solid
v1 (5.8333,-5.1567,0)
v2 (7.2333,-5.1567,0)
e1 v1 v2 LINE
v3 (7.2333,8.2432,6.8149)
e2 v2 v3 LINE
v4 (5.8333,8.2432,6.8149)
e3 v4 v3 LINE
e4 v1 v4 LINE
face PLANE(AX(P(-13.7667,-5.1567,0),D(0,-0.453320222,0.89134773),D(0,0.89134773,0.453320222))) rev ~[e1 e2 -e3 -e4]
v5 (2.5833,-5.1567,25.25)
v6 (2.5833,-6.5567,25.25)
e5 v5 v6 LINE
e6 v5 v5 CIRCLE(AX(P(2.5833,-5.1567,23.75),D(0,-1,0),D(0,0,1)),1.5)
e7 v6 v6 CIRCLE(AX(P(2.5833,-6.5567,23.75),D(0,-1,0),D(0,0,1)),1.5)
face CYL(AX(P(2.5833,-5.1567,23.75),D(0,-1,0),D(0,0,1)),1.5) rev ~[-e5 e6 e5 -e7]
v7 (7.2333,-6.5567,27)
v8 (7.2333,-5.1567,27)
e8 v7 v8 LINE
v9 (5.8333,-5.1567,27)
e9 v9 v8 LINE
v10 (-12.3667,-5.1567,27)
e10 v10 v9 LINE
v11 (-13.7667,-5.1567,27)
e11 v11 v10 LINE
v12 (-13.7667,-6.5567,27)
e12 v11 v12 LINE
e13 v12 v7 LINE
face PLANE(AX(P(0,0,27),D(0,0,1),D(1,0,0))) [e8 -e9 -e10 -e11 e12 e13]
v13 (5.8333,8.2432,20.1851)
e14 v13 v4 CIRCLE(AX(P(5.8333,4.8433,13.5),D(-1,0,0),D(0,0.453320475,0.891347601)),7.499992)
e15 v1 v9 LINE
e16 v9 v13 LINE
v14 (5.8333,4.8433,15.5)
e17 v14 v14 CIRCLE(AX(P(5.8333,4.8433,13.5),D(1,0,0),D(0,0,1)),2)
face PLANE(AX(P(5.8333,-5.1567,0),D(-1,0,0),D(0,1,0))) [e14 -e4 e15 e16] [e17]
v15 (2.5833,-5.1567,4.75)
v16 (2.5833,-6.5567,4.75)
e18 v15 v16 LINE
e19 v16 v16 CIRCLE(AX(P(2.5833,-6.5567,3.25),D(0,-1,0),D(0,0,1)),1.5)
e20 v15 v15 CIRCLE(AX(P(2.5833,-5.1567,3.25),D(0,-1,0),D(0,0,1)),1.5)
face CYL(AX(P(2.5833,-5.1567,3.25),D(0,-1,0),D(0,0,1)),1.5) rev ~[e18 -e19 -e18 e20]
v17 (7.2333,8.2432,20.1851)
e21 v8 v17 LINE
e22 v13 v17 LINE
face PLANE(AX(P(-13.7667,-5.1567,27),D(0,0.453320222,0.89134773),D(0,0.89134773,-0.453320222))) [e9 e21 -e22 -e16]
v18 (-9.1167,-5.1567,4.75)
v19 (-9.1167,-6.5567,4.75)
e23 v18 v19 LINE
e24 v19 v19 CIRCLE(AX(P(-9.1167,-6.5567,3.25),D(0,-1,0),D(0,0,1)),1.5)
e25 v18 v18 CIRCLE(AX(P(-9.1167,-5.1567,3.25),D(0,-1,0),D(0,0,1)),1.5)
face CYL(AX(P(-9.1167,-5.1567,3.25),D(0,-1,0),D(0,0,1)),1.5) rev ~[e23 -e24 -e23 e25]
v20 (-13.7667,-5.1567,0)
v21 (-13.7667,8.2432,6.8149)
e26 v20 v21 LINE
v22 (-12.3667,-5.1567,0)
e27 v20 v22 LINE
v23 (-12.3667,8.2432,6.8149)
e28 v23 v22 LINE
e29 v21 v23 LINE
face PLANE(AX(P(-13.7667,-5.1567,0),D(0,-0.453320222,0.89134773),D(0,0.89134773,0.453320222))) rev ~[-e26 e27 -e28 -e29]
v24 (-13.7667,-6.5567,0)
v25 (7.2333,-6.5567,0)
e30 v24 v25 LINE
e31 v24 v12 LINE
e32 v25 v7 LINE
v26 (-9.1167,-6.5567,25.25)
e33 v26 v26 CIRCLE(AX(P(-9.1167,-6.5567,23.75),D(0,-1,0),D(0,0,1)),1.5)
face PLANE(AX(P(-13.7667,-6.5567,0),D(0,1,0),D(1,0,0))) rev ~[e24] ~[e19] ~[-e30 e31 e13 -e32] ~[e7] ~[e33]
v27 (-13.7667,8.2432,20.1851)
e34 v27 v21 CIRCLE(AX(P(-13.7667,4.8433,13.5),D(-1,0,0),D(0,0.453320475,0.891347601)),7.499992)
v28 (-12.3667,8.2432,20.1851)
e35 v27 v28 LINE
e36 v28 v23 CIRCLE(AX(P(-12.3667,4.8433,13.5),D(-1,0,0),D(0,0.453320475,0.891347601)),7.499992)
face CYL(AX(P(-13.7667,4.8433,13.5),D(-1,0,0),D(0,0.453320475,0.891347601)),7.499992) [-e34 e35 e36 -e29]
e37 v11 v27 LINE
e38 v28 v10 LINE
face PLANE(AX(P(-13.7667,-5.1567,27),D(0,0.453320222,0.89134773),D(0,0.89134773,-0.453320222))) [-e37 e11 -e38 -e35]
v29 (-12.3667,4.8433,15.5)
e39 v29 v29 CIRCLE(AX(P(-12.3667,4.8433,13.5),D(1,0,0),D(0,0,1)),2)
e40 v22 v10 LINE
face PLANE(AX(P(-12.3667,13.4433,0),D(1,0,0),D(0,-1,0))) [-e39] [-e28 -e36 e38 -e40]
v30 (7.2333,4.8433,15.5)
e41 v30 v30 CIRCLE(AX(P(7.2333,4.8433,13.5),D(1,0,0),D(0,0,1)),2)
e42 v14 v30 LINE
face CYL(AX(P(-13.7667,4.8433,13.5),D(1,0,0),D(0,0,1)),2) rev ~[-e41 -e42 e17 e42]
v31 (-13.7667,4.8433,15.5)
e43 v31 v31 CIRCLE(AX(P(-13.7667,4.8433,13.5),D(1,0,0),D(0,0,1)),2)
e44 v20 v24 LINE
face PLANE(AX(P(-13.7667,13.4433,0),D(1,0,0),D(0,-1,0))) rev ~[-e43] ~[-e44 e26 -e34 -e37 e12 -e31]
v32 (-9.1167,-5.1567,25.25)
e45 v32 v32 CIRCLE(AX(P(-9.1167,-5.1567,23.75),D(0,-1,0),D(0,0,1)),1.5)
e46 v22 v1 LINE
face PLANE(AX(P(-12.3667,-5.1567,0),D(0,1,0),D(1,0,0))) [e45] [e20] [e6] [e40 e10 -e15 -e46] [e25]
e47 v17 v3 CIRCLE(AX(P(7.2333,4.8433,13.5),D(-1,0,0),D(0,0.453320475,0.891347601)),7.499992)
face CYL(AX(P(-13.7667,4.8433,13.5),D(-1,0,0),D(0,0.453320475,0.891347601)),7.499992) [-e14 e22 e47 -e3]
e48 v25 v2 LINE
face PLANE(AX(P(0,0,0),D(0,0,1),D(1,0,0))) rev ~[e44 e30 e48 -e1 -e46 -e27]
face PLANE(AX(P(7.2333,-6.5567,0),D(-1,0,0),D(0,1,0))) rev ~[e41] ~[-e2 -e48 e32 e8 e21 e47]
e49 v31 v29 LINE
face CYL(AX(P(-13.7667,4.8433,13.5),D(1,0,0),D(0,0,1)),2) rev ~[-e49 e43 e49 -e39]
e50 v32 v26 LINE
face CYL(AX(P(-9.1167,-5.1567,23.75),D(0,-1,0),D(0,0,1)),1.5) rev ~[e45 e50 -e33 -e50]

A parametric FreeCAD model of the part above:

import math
import FreeCAD as App
import Part
import Sketcher


def add_polygon(sketch, points):
    """Adds a closed chain of lines whose ends are joined by coincident constraints."""
    first, n = sketch.GeometryCount, len(points)
    for a, b in zip(points, points[1:] + points[:1]):
        sketch.addGeometry(Part.LineSegment(App.Vector(*a, 0), App.Vector(*b, 0)), False)
    for i in range(n):
        sketch.addConstraint(Sketcher.Constraint("Coincident", first + i, 2, first + (i + 1) % n, 1))

doc = App.newDocument("Part")
body = doc.addObject("PartDesign::Body", "Body")

# Sketch on XY plane
sketch1 = body.newObject("Sketcher::SketchObject", "Sketch")
sketch1.AttachmentSupport = (doc.getObject("XY_Plane"), [""])
sketch1.MapMode = "FlatFace"
add_polygon(sketch1, [(-12.3667, 13.4433), (-13.7667, 13.4433), (-13.7667, -6.5567), (7.2333, -6.5567), (7.2333, 13.4433), (5.8333, 13.4433), (5.8333, -5.1567), (-12.3667, -5.1567)])  # lines 0-7
sketch1.addConstraint([
    Sketcher.Constraint("Horizontal", 0),
    Sketcher.Constraint("Vertical", 1),
    Sketcher.Constraint("Horizontal", 2),
    Sketcher.Constraint("Vertical", 3),
    Sketcher.Constraint("Horizontal", 4),
    Sketcher.Constraint("Vertical", 5),
    Sketcher.Constraint("Horizontal", 6),
    Sketcher.Constraint("Vertical", 7),
    Sketcher.Constraint("Horizontal", 0, 2, 3, 2),
    Sketcher.Constraint("Equal", 0, 4),
    Sketcher.Constraint("DistanceX", 2, 1, 2, 2, 21.0),
    Sketcher.Constraint("DistanceY", 1, 2, 1, 1, 20.0),
    Sketcher.Constraint("DistanceX", 0, 2, 0, 1, 1.4),
    Sketcher.Constraint("DistanceY", 2, 2, 5, 2, 1.4),
    Sketcher.Constraint("DistanceX", 0, 2, -1, 1, 13.7667),
    Sketcher.Constraint("DistanceY", -1, 1, 0, 2, 13.4433),
])
pad1 = body.newObject("PartDesign::Pad", "Pad")
pad1.Profile = sketch1
pad1.Length = 27

# Sketch on YZ plane
sketch2 = body.newObject("Sketcher::SketchObject", "Sketch001")
sketch2.AttachmentSupport = (doc.getObject("YZ_Plane"), [""])
sketch2.MapMode = "FlatFace"
sketch2.AttachmentOffset = App.Placement(App.Vector(0, 0, -13.7667), App.Rotation())
sketch2.addGeometry([
    Part.LineSegment(App.Vector(13.4433, 0, 0), App.Vector(-5.1567, 0, 0)),  # 0
    Part.LineSegment(App.Vector(-5.1567, 0, 0), App.Vector(8.2432, 6.8149, 0)),  # 1
    Part.ArcOfCircle(Part.Circle(App.Vector(4.8433, 13.5, 0), App.Vector(0, 0, 1), 7.499992), math.radians(-63.043077), math.radians(63.043077)),  # 2
    Part.LineSegment(App.Vector(8.2432, 20.1851, 0), App.Vector(-5.1567, 27, 0)),  # 3
    Part.LineSegment(App.Vector(-5.1567, 27, 0), App.Vector(13.4433, 27, 0)),  # 4
    Part.LineSegment(App.Vector(13.4433, 27, 0), App.Vector(13.4433, 0, 0)),  # 5
], False)
sketch2.addConstraint([
    Sketcher.Constraint("Coincident", 0, 2, 1, 1),
    Sketcher.Constraint("Tangent", 1, 2, 2, 1),
    Sketcher.Constraint("Tangent", 2, 2, 3, 1),
    Sketcher.Constraint("Coincident", 3, 2, 4, 1),
    Sketcher.Constraint("Coincident", 4, 2, 5, 1),
    Sketcher.Constraint("Coincident", 5, 2, 0, 1),
    Sketcher.Constraint("Horizontal", 0),
    Sketcher.Constraint("Horizontal", 4),
    Sketcher.Constraint("Vertical", 5),
    Sketcher.Constraint("PointOnObject", 0, 2, -1),
    Sketcher.Constraint("Vertical", 1, 2, 2, 2),
    Sketcher.Constraint("Vertical", 0, 2, 3, 2),
    Sketcher.Constraint("Radius", 2, 7.5),
    Sketcher.Constraint("DistanceY", 5, 2, 5, 1, 27.0),
    Sketcher.Constraint("DistanceX", 0, 2, 2, 3, 10.0),
    Sketcher.Constraint("DistanceX", 0, 2, 0, 1, 18.6),
    Sketcher.Constraint("DistanceX", -1, 1, 2, 3, 4.8433),
])
pocket1 = body.newObject("PartDesign::Pocket", "Pocket")
pocket1.Profile = sketch2
pocket1.Type = "ThroughAll"
pocket1.Reversed = True

# Sketch on YZ plane
sketch3 = body.newObject("Sketcher::SketchObject", "Sketch002")
sketch3.AttachmentSupport = (doc.getObject("YZ_Plane"), [""])
sketch3.MapMode = "FlatFace"
sketch3.AttachmentOffset = App.Placement(App.Vector(0, 0, -13.7667), App.Rotation())
sketch3.addGeometry(Part.Circle(App.Vector(4.8433, 13.5, 0), App.Vector(0, 0, 1), 2), False)
sketch3.addConstraint([
    Sketcher.Constraint("Diameter", 0, 4.0),
    Sketcher.Constraint("DistanceY", -1, 1, 0, 3, 13.5),
    Sketcher.Constraint("DistanceX", -1, 1, 0, 3, 4.8433),
])
doc.recompute()
hole = body.newObject("PartDesign::Hole", "Hole")
hole.Profile = sketch3
hole.ThreadType = "None"
hole.Diameter = 4
hole.DepthType = "ThroughAll"
hole.Reversed = True

# Sketch on XZ plane
sketch4 = body.newObject("Sketcher::SketchObject", "Sketch003")
sketch4.AttachmentSupport = (doc.getObject("XZ_Plane"), [""])
sketch4.MapMode = "FlatFace"
sketch4.AttachmentOffset = App.Placement(App.Vector(0, 0, 5.1567), App.Rotation())
sketch4.addGeometry([
    Part.Circle(App.Vector(2.5833, 23.75, 0), App.Vector(0, 0, 1), 1.5),
    Part.Circle(App.Vector(-9.1167, 23.75, 0), App.Vector(0, 0, 1), 1.5),
    Part.Circle(App.Vector(2.5833, 3.25, 0), App.Vector(0, 0, 1), 1.5),
    Part.Circle(App.Vector(-9.1167, 3.25, 0), App.Vector(0, 0, 1), 1.5),
], False)
sketch4.addConstraint([
    Sketcher.Constraint("Equal", 0, 1),
    Sketcher.Constraint("Equal", 1, 2),
    Sketcher.Constraint("Equal", 2, 3),
    Sketcher.Constraint("Horizontal", 0, 3, 1, 3),
    Sketcher.Constraint("Horizontal", 2, 3, 3, 3),
    Sketcher.Constraint("Vertical", 0, 3, 2, 3),
    Sketcher.Constraint("Vertical", 1, 3, 3, 3),
    Sketcher.Constraint("Diameter", 0, 3.0),
    Sketcher.Constraint("DistanceX", 1, 3, 0, 3, 11.7),
    Sketcher.Constraint("DistanceY", 2, 3, 0, 3, 20.5),
    Sketcher.Constraint("DistanceY", -1, 1, 0, 3, 23.75),
    Sketcher.Constraint("DistanceX", -1, 1, 0, 3, 2.5833),
])
doc.recompute()
hole2 = body.newObject("PartDesign::Hole", "Hole001")
hole2.Profile = sketch4
hole2.ThreadType = "None"
hole2.Diameter = 3
hole2.DepthType = "ThroughAll"
hole2.Reversed = True

doc.recompute()
